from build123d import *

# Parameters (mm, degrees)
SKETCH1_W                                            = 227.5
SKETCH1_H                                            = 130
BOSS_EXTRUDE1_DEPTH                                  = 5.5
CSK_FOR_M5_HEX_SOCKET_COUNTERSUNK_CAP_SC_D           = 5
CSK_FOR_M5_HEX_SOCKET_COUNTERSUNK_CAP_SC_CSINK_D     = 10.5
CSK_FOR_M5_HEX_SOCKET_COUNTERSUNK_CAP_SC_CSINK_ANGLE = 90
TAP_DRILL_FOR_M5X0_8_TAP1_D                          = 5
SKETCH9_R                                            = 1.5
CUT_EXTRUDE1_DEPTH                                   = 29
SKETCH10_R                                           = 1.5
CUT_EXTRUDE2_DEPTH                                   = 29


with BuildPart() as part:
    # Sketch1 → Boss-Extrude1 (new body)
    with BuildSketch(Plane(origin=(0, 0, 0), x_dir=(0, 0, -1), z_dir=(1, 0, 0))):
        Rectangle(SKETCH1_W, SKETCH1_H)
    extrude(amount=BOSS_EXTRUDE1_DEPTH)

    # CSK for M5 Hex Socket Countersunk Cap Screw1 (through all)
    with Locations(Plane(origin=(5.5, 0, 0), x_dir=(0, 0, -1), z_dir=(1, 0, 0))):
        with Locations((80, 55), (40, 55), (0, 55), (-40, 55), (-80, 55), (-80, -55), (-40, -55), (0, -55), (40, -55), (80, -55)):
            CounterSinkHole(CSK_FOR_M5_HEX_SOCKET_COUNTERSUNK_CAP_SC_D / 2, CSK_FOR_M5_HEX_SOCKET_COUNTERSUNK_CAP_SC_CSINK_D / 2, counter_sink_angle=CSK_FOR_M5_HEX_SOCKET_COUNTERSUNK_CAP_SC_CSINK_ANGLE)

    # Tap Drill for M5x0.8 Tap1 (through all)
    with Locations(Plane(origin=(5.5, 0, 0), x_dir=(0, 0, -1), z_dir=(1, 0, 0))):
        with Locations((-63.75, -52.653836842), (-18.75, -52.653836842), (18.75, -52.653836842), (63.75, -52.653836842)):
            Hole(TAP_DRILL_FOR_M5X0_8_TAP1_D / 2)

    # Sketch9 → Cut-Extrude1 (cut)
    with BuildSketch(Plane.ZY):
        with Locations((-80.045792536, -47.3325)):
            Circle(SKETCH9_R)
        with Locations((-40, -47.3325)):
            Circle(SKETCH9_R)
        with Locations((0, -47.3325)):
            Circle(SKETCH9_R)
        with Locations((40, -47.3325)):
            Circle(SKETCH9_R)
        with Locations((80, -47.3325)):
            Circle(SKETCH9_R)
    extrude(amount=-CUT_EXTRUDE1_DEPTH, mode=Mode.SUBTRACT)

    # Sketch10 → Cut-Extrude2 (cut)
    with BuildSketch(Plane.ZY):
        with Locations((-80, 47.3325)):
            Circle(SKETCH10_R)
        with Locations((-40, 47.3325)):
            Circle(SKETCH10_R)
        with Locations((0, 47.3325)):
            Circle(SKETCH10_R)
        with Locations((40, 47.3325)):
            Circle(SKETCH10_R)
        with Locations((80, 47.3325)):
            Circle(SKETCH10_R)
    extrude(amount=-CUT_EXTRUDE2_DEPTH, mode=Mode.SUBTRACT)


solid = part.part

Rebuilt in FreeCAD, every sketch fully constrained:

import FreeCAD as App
import Part
import Sketcher

V = App.Vector


def add_polygon(sketch, points):
    """Adds a closed chain of lines whose ends are joined by coincident constraints."""
    first, n = sketch.GeometryCount, len(points)
    for a, b in zip(points, points[1:] + points[:1]):
        sketch.addGeometry(Part.LineSegment(App.Vector(*a, 0), App.Vector(*b, 0)), False)
    for i in range(n):
        sketch.addConstraint(Sketcher.Constraint("Coincident", first + i, 2, first + (i + 1) % n, 1))

doc = App.newDocument("Part")
body = doc.addObject("PartDesign::Body", "Body")

sketch1 = body.newObject("Sketcher::SketchObject", "Sketch")
sketch1.AttachmentSupport = (doc.getObject("YZ_Plane"), [""])
sketch1.MapMode = "FlatFace"
add_polygon(sketch1, [(65, 114), (-65, 114), (-65, -114), (65, -114)])
sketch1.addConstraint(Sketcher.Constraint("Horizontal", 0))
sketch1.addConstraint(Sketcher.Constraint("Vertical", 1))
sketch1.addConstraint(Sketcher.Constraint("Horizontal", 2))
sketch1.addConstraint(Sketcher.Constraint("Vertical", 3))
sketch1.addConstraint(Sketcher.Constraint("Symmetric", 0, 2, 2, 2, -1, 1))
sketch1.addConstraint(Sketcher.Constraint("DistanceX", 0, 2, 0, 1, 130.0))
sketch1.addConstraint(Sketcher.Constraint("DistanceY", 1, 2, 1, 1, 227.5))
pad1 = body.newObject("PartDesign::Pad", "Pad")
pad1.Profile = sketch1
pad1.Length = 5.5

sketch2 = body.newObject("Sketcher::SketchObject", "Sketch001")
sketch2.AttachmentSupport = (doc.getObject("YZ_Plane"), [""])
sketch2.MapMode = "FlatFace"
sketch2.AttachmentOffset = App.Placement(V(0, 0, 5.5), App.Rotation())
sketch2.addGeometry(Part.Circle(V(55, -80, 0), V(0, 0, 1), 2.5), False)
sketch2.addGeometry(Part.Circle(V(55, -40, 0), V(0, 0, 1), 2.5), False)
sketch2.addGeometry(Part.Circle(V(55, 0, 0), V(0, 0, 1), 2.5), False)
sketch2.addGeometry(Part.Circle(V(55, 40, 0), V(0, 0, 1), 2.5), False)
sketch2.addGeometry(Part.Circle(V(55, 80, 0), V(0, 0, 1), 2.5), False)
sketch2.addGeometry(Part.Circle(V(-55, 80, 0), V(0, 0, 1), 2.5), False)
sketch2.addGeometry(Part.Circle(V(-55, 40, 0), V(0, 0, 1), 2.5), False)
sketch2.addGeometry(Part.Circle(V(-55, 0, 0), V(0, 0, 1), 2.5), False)
sketch2.addGeometry(Part.Circle(V(-55, -40, 0), V(0, 0, 1), 2.5), False)
sketch2.addGeometry(Part.Circle(V(-55, -80, 0), V(0, 0, 1), 2.5), False)
sketch2.addConstraint(Sketcher.Constraint("Equal", 0, 1))
sketch2.addConstraint(Sketcher.Constraint("Equal", 1, 2))
sketch2.addConstraint(Sketcher.Constraint("Equal", 2, 3))
sketch2.addConstraint(Sketcher.Constraint("Equal", 3, 4))
sketch2.addConstraint(Sketcher.Constraint("Equal", 4, 5))
sketch2.addConstraint(Sketcher.Constraint("Equal", 5, 6))
sketch2.addConstraint(Sketcher.Constraint("Equal", 6, 7))
sketch2.addConstraint(Sketcher.Constraint("Equal", 7, 8))
sketch2.addConstraint(Sketcher.Constraint("Equal", 8, 9))
sketch2.addConstraint(Sketcher.Constraint("Symmetric", 0, 3, 5, 3, -1, 1))
sketch2.addConstraint(Sketcher.Constraint("Symmetric", 1, 3, 6, 3, -1, 1))
sketch2.addConstraint(Sketcher.Constraint("Symmetric", 2, 3, 7, 3, -1, 1))
sketch2.addConstraint(Sketcher.Constraint("Symmetric", 3, 3, 8, 3, -1, 1))
sketch2.addConstraint(Sketcher.Constraint("Symmetric", 4, 3, 9, 3, -1, 1))
sketch2.addConstraint(Sketcher.Constraint("Symmetric", 4, 3, 5, 3, -2))
sketch2.addConstraint(Sketcher.Constraint("Symmetric", 3, 3, 6, 3, -2))
sketch2.addConstraint(Sketcher.Constraint("PointOnObject", 2, 3, -1))
sketch2.addConstraint(Sketcher.Constraint("Vertical", 0, 3, 1, 3))
sketch2.addConstraint(Sketcher.Constraint("Vertical", 1, 3, 2, 3))
sketch2.addConstraint(Sketcher.Constraint("Diameter", 0, 5.0))
sketch2.addConstraint(Sketcher.Constraint("DistanceX", -1, 1, 0, 3, 55.0))
sketch2.addConstraint(Sketcher.Constraint("DistanceY", 0, 3, -1, 1, 80.0))
sketch2.addConstraint(Sketcher.Constraint("DistanceY", 1, 3, -1, 1, 40.0))
doc.recompute()
hole = body.newObject("PartDesign::Hole", "Hole")
hole.Profile = sketch2
hole.ThreadType = "None"
hole.Diameter = 5
hole.DepthType = "ThroughAll"
hole.HoleCutType = "Countersink"
hole.HoleCutDiameter = 10.5
hole.HoleCutCountersinkAngle = 90

sketch3 = body.newObject("Sketcher::SketchObject", "Sketch002")
sketch3.AttachmentSupport = (doc.getObject("YZ_Plane"), [""])
sketch3.MapMode = "FlatFace"
sketch3.AttachmentOffset = App.Placement(V(0, 0, 5.5), App.Rotation())
sketch3.addGeometry(Part.Circle(V(-52.7, 63.8, 0), V(0, 0, 1), 2.5), False)
sketch3.addGeometry(Part.Circle(V(-52.7, 18.8, 0), V(0, 0, 1), 2.5), False)
sketch3.addGeometry(Part.Circle(V(-52.7, -18.8, 0), V(0, 0, 1), 2.5), False)
sketch3.addGeometry(Part.Circle(V(-52.7, -63.8, 0), V(0, 0, 1), 2.5), False)
sketch3.addConstraint(Sketcher.Constraint("Equal", 0, 1))
sketch3.addConstraint(Sketcher.Constraint("Equal", 1, 2))
sketch3.addConstraint(Sketcher.Constraint("Equal", 2, 3))
sketch3.addConstraint(Sketcher.Constraint("Symmetric", 1, 3, 2, 3, -1))
sketch3.addConstraint(Sketcher.Constraint("Symmetric", 0, 3, 3, 3, -1))
sketch3.addConstraint(Sketcher.Constraint("Vertical", 0, 3, 1, 3))
sketch3.addConstraint(Sketcher.Constraint("Diameter", 0, 5.0))
sketch3.addConstraint(Sketcher.Constraint("DistanceY", 1, 3, 0, 3, 45.0))
sketch3.addConstraint(Sketcher.Constraint("DistanceY", 2, 3, 1, 3, 37.5))
sketch3.addConstraint(Sketcher.Constraint("DistanceX", 0, 3, -1, 1, 52.653837))
doc.recompute()
hole2 = body.newObject("PartDesign::Hole", "Hole001")
hole2.Profile = sketch3
hole2.ThreadType = "None"
hole2.Diameter = 5
hole2.DepthType = "ThroughAll"

sketch4 = body.newObject("Sketcher::SketchObject", "Sketch003")
sketch4.AttachmentSupport = (doc.getObject("YZ_Plane"), [""])
sketch4.MapMode = "FlatFace"
sketch4.addGeometry(Part.Circle(V(-47.3, -80, 0), V(0, 0, 1), 1.5), False)
sketch4.addGeometry(Part.Circle(V(-47.3, -40, 0), V(0, 0, 1), 1.5), False)
sketch4.addGeometry(Part.Circle(V(-47.3, 0, 0), V(0, 0, 1), 1.5), False)
sketch4.addGeometry(Part.Circle(V(-47.3, 40, 0), V(0, 0, 1), 1.5), False)
sketch4.addGeometry(Part.Circle(V(-47.3, 80, 0), V(0, 0, 1), 1.5), False)
sketch4.addConstraint(Sketcher.Constraint("Equal", 0, 1))
sketch4.addConstraint(Sketcher.Constraint("Equal", 1, 2))
sketch4.addConstraint(Sketcher.Constraint("Equal", 2, 3))
sketch4.addConstraint(Sketcher.Constraint("Equal", 3, 4))
sketch4.addConstraint(Sketcher.Constraint("Symmetric", 1, 3, 3, 3, -1))
sketch4.addConstraint(Sketcher.Constraint("PointOnObject", 2, 3, -1))
sketch4.addConstraint(Sketcher.Constraint("Vertical", 0, 3, 1, 3))
sketch4.addConstraint(Sketcher.Constraint("Vertical", 1, 3, 2, 3))
sketch4.addConstraint(Sketcher.Constraint("Vertical", 3, 3, 4, 3))
sketch4.addConstraint(Sketcher.Constraint("Diameter", 0, 3.0))
sketch4.addConstraint(Sketcher.Constraint("DistanceY", 1, 3, -1, 1, 40.0))
sketch4.addConstraint(Sketcher.Constraint("DistanceY", -1, 1, 4, 3, 80.0))
sketch4.addConstraint(Sketcher.Constraint("DistanceX", 0, 3, -1, 1, 47.3325))
sketch4.addConstraint(Sketcher.Constraint("DistanceY", 0, 3, -1, 1, 80.045793))
pocket1 = body.newObject("PartDesign::Pocket", "Pocket")
pocket1.Profile = sketch4
pocket1.Length = 29
pocket1.Reversed = True

sketch5 = body.newObject("Sketcher::SketchObject", "Sketch004")
sketch5.AttachmentSupport = (doc.getObject("YZ_Plane"), [""])
sketch5.MapMode = "FlatFace"
sketch5.addGeometry(Part.Circle(V(47.3, -80, 0), V(0, 0, 1), 1.5), False)
sketch5.addGeometry(Part.Circle(V(47.3, -40, 0), V(0, 0, 1), 1.5), False)
sketch5.addGeometry(Part.Circle(V(47.3, 0, 0), V(0, 0, 1), 1.5), False)
sketch5.addGeometry(Part.Circle(V(47.3, 40, 0), V(0, 0, 1), 1.5), False)
sketch5.addGeometry(Part.Circle(V(47.3, 80, 0), V(0, 0, 1), 1.5), False)
sketch5.addConstraint(Sketcher.Constraint("Equal", 0, 1))
sketch5.addConstraint(Sketcher.Constraint("Equal", 1, 2))
sketch5.addConstraint(Sketcher.Constraint("Equal", 2, 3))
sketch5.addConstraint(Sketcher.Constraint("Equal", 3, 4))
sketch5.addConstraint(Sketcher.Constraint("Symmetric", 1, 3, 3, 3, -1))
sketch5.addConstraint(Sketcher.Constraint("Symmetric", 0, 3, 4, 3, -1))
sketch5.addConstraint(Sketcher.Constraint("PointOnObject", 2, 3, -1))
sketch5.addConstraint(Sketcher.Constraint("Vertical", 0, 3, 1, 3))
sketch5.addConstraint(Sketcher.Constraint("Vertical", 1, 3, 2, 3))
sketch5.addConstraint(Sketcher.Constraint("Diameter", 0, 3.0))
sketch5.addConstraint(Sketcher.Constraint("DistanceY", 0, 3, -1, 1, 80.0))
sketch5.addConstraint(Sketcher.Constraint("DistanceY", 1, 3, -1, 1, 40.0))
sketch5.addConstraint(Sketcher.Constraint("DistanceX", -1, 1, 0, 3, 47.3325))
pocket2 = body.newObject("PartDesign::Pocket", "Pocket001")
pocket2.Profile = sketch5
pocket2.Length = 29
pocket2.Reversed = True

doc.recompute()
